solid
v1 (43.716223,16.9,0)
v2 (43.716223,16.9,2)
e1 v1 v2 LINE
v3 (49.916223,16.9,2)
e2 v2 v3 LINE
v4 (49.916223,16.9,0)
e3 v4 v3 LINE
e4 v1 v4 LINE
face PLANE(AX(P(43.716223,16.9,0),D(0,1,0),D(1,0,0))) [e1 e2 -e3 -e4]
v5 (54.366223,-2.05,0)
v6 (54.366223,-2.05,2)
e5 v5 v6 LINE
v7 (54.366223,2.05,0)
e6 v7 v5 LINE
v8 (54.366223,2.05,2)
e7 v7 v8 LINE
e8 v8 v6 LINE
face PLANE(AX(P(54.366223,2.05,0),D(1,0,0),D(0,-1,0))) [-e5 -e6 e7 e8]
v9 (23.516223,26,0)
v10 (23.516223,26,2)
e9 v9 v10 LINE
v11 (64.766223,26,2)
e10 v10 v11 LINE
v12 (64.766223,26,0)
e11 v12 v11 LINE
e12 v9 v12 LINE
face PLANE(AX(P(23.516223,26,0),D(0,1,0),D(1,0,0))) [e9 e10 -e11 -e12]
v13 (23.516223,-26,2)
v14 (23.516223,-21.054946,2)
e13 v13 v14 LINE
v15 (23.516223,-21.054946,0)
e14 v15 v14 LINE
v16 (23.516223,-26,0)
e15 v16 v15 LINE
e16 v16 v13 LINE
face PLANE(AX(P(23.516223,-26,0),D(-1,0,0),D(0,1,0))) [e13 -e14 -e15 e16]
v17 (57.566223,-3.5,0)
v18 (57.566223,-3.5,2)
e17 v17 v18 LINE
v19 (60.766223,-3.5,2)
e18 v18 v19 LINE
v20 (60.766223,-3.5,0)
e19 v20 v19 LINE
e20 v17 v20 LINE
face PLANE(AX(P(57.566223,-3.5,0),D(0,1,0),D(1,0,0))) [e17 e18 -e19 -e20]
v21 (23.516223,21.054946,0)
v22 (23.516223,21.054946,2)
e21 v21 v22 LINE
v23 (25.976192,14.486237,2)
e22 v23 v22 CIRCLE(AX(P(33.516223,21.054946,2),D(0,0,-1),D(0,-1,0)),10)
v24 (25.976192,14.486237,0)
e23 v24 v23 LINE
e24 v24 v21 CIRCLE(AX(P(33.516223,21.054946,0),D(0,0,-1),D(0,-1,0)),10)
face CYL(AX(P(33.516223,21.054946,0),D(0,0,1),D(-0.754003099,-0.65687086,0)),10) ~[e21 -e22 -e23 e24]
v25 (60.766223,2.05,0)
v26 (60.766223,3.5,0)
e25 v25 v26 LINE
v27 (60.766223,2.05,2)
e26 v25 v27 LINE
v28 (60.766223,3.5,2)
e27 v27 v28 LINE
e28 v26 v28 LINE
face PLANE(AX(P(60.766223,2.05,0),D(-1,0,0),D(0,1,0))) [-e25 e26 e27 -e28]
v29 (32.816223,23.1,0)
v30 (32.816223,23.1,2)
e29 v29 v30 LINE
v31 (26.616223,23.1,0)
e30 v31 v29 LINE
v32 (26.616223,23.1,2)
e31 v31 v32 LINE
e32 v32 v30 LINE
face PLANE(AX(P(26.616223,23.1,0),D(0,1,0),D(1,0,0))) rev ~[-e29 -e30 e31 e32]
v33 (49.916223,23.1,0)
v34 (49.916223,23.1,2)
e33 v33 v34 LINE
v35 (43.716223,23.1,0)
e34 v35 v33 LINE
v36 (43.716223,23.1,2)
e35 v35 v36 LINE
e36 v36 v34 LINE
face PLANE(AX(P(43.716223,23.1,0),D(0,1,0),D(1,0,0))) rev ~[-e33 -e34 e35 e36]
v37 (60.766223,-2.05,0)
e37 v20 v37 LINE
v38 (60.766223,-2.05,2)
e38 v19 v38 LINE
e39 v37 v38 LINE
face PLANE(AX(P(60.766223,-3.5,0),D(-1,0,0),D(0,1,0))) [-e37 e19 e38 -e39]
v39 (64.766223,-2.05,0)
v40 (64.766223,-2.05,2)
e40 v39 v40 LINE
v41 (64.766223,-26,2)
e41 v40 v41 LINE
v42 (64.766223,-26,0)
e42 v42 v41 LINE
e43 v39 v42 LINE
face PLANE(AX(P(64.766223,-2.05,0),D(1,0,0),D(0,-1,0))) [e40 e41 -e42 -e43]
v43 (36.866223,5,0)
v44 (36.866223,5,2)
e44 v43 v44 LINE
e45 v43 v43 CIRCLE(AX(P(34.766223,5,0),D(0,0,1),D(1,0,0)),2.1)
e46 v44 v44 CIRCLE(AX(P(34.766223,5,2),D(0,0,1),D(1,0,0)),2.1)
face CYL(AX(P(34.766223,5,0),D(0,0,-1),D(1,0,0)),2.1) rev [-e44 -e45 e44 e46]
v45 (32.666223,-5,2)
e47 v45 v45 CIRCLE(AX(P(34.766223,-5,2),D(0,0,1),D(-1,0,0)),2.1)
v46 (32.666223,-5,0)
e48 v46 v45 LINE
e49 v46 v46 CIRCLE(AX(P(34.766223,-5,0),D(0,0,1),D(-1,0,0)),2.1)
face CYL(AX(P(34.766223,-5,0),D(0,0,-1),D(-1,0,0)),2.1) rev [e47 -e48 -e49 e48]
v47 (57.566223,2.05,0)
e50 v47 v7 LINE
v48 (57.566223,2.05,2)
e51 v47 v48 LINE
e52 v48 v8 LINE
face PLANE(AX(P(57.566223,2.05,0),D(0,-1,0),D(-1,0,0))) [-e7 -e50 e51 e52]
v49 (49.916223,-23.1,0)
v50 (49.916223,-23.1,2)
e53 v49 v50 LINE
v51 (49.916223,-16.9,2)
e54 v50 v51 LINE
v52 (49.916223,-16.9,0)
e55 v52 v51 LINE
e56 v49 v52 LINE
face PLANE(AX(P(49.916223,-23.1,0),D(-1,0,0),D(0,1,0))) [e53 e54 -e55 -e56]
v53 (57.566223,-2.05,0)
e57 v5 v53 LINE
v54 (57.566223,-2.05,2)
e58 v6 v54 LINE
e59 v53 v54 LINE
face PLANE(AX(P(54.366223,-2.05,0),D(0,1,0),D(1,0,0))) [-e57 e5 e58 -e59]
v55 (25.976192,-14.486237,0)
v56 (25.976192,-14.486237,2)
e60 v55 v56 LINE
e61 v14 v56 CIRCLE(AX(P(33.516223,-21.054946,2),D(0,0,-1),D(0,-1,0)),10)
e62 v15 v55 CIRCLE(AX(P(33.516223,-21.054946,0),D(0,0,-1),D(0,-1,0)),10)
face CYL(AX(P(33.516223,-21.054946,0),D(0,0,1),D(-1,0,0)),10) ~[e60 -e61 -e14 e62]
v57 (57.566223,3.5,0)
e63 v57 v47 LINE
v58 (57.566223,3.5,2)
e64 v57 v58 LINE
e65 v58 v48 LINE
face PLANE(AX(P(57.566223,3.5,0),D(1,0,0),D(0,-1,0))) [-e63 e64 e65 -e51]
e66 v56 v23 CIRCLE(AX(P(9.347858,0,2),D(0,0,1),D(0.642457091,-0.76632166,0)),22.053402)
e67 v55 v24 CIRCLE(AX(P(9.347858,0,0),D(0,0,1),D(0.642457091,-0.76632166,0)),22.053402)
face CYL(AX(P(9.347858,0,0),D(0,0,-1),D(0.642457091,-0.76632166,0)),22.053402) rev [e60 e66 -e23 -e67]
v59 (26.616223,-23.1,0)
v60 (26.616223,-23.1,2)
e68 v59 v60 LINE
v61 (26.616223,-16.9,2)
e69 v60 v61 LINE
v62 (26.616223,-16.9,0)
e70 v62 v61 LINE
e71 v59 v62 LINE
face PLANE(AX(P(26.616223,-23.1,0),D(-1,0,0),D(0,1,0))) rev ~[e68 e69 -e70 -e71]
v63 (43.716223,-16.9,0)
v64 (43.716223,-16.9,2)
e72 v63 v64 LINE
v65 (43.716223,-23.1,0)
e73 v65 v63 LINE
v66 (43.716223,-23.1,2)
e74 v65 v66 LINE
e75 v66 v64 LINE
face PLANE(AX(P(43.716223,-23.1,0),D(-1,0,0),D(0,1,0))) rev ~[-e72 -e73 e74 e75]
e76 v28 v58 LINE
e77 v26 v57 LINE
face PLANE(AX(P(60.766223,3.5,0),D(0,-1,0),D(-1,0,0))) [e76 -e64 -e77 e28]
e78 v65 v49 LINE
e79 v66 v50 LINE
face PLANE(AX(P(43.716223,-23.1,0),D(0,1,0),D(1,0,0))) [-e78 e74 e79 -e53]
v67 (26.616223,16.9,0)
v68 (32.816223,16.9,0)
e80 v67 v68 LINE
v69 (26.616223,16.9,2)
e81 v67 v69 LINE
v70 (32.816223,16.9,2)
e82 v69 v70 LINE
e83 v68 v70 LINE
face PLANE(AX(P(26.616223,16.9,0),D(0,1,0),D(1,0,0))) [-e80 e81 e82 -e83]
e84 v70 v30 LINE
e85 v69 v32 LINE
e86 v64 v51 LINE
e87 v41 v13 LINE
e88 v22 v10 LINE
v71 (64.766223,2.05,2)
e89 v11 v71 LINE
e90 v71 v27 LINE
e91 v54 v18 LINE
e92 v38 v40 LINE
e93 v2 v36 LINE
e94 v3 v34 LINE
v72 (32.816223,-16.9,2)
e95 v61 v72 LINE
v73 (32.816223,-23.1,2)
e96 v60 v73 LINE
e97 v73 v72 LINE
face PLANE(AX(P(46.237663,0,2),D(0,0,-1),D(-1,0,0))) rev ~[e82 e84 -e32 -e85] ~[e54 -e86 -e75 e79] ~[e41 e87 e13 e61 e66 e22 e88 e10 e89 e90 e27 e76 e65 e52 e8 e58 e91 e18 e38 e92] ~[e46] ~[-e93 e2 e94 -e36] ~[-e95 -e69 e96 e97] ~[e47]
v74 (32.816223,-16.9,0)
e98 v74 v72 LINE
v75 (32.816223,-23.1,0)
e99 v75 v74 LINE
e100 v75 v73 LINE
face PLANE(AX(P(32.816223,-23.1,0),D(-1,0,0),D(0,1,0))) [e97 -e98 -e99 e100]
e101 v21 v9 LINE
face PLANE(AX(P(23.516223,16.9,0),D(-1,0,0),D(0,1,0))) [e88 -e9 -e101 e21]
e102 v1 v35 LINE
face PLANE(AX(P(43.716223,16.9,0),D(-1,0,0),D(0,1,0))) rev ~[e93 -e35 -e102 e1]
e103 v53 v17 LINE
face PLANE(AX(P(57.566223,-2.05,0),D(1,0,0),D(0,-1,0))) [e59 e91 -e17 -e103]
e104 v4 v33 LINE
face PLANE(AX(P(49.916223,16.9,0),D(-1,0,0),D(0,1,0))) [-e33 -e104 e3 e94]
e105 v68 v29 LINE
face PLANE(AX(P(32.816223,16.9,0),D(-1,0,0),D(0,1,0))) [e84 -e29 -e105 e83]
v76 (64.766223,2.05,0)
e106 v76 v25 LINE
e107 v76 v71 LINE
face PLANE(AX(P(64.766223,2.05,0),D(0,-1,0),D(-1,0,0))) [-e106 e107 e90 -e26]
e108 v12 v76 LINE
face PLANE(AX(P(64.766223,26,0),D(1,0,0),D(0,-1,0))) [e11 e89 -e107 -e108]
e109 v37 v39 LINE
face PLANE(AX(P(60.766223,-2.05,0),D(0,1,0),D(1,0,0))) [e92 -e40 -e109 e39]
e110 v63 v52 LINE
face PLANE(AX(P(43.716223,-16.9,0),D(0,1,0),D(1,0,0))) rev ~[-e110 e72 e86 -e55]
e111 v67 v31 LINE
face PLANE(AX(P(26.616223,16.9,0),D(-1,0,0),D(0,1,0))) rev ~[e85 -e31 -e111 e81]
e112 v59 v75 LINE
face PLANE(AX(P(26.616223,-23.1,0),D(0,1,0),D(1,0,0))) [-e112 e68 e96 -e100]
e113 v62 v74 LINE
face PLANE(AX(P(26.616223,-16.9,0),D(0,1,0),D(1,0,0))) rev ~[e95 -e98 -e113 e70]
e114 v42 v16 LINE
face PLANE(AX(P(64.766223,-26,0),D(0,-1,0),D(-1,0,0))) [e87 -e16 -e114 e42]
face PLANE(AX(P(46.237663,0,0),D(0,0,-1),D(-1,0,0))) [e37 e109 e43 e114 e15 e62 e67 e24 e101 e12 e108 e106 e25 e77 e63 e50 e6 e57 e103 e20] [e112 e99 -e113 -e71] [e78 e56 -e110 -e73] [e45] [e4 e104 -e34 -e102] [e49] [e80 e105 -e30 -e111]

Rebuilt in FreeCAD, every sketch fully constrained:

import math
import FreeCAD as App
import Part
import Sketcher
Q = App.Units.Quantity


def edges_at(feature, points):
    """Names of the edges that pass closest to the given points."""
    edges = feature.Shape.Edges
    near = lambda p: min(range(len(edges)), key=lambda i: edges[i].distToShape(Part.Vertex(*p))[0])
    return sorted({f"Edge{near(p) + 1}" for p in points})


def add_polygon(sketch, points):
    """Adds a closed chain of lines whose ends are joined by coincident constraints."""
    first, n = sketch.GeometryCount, len(points)
    for a, b in zip(points, points[1:] + points[:1]):
        sketch.addGeometry(Part.LineSegment(App.Vector(*a, 0), App.Vector(*b, 0)), False)
    for i in range(n):
        sketch.addConstraint(Sketcher.Constraint("Coincident", first + i, 2, first + (i + 1) % n, 1))

doc = App.newDocument("Part")
body = doc.addObject("PartDesign::Body", "Body")

# Sketch on XY plane
sketch1 = doc.addObject("Sketcher::SketchObject", "Sketch")
body.addObject(sketch1)
sketch1.AttachmentSupport = (doc.XY_Plane, [""])
sketch1.MapMode = "FlatFace"
sketch1.addGeometry(Part.LineSegment(App.Vector(23.5, -26, 0), App.Vector(64.8, -26, 0)), False)  # 0
sketch1.addGeometry(Part.LineSegment(App.Vector(64.8, -26, 0), App.Vector(64.8, -2, 0)), False)  # 1
sketch1.addGeometry(Part.LineSegment(App.Vector(64.8, -2, 0), App.Vector(60.8, -2, 0)), False)  # 2
sketch1.addGeometry(Part.LineSegment(App.Vector(60.8, -2, 0), App.Vector(60.8, -3.5, 0)), False)  # 3
sketch1.addGeometry(Part.LineSegment(App.Vector(60.8, -3.5, 0), App.Vector(57.6, -3.5, 0)), False)  # 4
sketch1.addGeometry(Part.LineSegment(App.Vector(57.6, -3.5, 0), App.Vector(57.6, -2, 0)), False)  # 5
sketch1.addGeometry(Part.LineSegment(App.Vector(57.6, -2, 0), App.Vector(54.4, -2, 0)), False)  # 6
sketch1.addGeometry(Part.LineSegment(App.Vector(54.4, -2, 0), App.Vector(54.4, 2, 0)), False)  # 7
sketch1.addGeometry(Part.LineSegment(App.Vector(54.4, 2, 0), App.Vector(57.6, 2, 0)), False)  # 8
sketch1.addGeometry(Part.LineSegment(App.Vector(57.6, 2, 0), App.Vector(57.6, 3.5, 0)), False)  # 9
sketch1.addGeometry(Part.LineSegment(App.Vector(57.6, 3.5, 0), App.Vector(60.8, 3.5, 0)), False)  # 10
sketch1.addGeometry(Part.LineSegment(App.Vector(60.8, 3.5, 0), App.Vector(60.8, 2, 0)), False)  # 11
sketch1.addGeometry(Part.LineSegment(App.Vector(60.8, 2, 0), App.Vector(64.8, 2, 0)), False)  # 12
sketch1.addGeometry(Part.LineSegment(App.Vector(64.8, 2, 0), App.Vector(64.8, 26, 0)), False)  # 13
sketch1.addGeometry(Part.LineSegment(App.Vector(64.8, 26, 0), App.Vector(23.5, 26, 0)), False)  # 14
sketch1.addGeometry(Part.LineSegment(App.Vector(23.5, 26, 0), App.Vector(23.5, 16.9, 0)), False)  # 15
sketch1.addGeometry(Part.ArcOfCircle(Part.Circle(App.Vector(9.3, 0, 0), App.Vector(0, 0, 1), 22.1), math.radians(-50), math.radians(50)), False)  # 16
sketch1.addGeometry(Part.LineSegment(App.Vector(23.5, -16.9, 0), App.Vector(23.5, -26, 0)), False)  # 17
add_polygon(sketch1, [(43.7, -23.1), (43.7, -16.9), (49.9, -16.9), (49.9, -23.1)])  # lines 18-21
add_polygon(sketch1, [(26.6, -23.1), (26.6, -16.9), (32.8, -16.9), (32.8, -23.1)])  # lines 22-25
sketch1.addGeometry(Part.Circle(App.Vector(34.8, -5, 0), App.Vector(0, 0, 1), 2.1), False)  # 26
add_polygon(sketch1, [(43.7, 16.9), (43.7, 23.1), (49.9, 23.1), (49.9, 16.9)])  # lines 27-30
sketch1.addGeometry(Part.Circle(App.Vector(34.8, 5, 0), App.Vector(0, 0, 1), 2.1), False)  # 31
add_polygon(sketch1, [(26.6, 16.9), (26.6, 23.1), (32.8, 23.1), (32.8, 16.9)])  # lines 32-35
sketch1.addConstraint(Sketcher.Constraint("Coincident", 0, 2, 1, 1))
sketch1.addConstraint(Sketcher.Constraint("Coincident", 1, 2, 2, 1))
sketch1.addConstraint(Sketcher.Constraint("Coincident", 2, 2, 3, 1))
sketch1.addConstraint(Sketcher.Constraint("Coincident", 3, 2, 4, 1))
sketch1.addConstraint(Sketcher.Constraint("Coincident", 4, 2, 5, 1))
sketch1.addConstraint(Sketcher.Constraint("Coincident", 5, 2, 6, 1))
sketch1.addConstraint(Sketcher.Constraint("Coincident", 6, 2, 7, 1))
sketch1.addConstraint(Sketcher.Constraint("Coincident", 7, 2, 8, 1))
sketch1.addConstraint(Sketcher.Constraint("Coincident", 8, 2, 9, 1))
sketch1.addConstraint(Sketcher.Constraint("Coincident", 9, 2, 10, 1))
sketch1.addConstraint(Sketcher.Constraint("Coincident", 10, 2, 11, 1))
sketch1.addConstraint(Sketcher.Constraint("Coincident", 11, 2, 12, 1))
sketch1.addConstraint(Sketcher.Constraint("Coincident", 12, 2, 13, 1))
sketch1.addConstraint(Sketcher.Constraint("Coincident", 13, 2, 14, 1))
sketch1.addConstraint(Sketcher.Constraint("Coincident", 14, 2, 15, 1))
sketch1.addConstraint(Sketcher.Constraint("Coincident", 15, 2, 16, 2))
sketch1.addConstraint(Sketcher.Constraint("Coincident", 16, 1, 17, 1))
sketch1.addConstraint(Sketcher.Constraint("Coincident", 17, 2, 0, 1))
sketch1.addConstraint(Sketcher.Constraint("Horizontal", 0))
sketch1.addConstraint(Sketcher.Constraint("Vertical", 1))
sketch1.addConstraint(Sketcher.Constraint("Horizontal", 2))
sketch1.addConstraint(Sketcher.Constraint("Vertical", 3))
sketch1.addConstraint(Sketcher.Constraint("Horizontal", 4))
sketch1.addConstraint(Sketcher.Constraint("Vertical", 5))
sketch1.addConstraint(Sketcher.Constraint("Horizontal", 6))
sketch1.addConstraint(Sketcher.Constraint("Vertical", 7))
sketch1.addConstraint(Sketcher.Constraint("Horizontal", 8))
sketch1.addConstraint(Sketcher.Constraint("Vertical", 9))
sketch1.addConstraint(Sketcher.Constraint("Horizontal", 10))
sketch1.addConstraint(Sketcher.Constraint("Vertical", 11))
sketch1.addConstraint(Sketcher.Constraint("Horizontal", 12))
sketch1.addConstraint(Sketcher.Constraint("Vertical", 13))
sketch1.addConstraint(Sketcher.Constraint("Horizontal", 14))
sketch1.addConstraint(Sketcher.Constraint("Vertical", 15))
sketch1.addConstraint(Sketcher.Constraint("Vertical", 17))
sketch1.addConstraint(Sketcher.Constraint("Vertical", 18))
sketch1.addConstraint(Sketcher.Constraint("Horizontal", 19))
sketch1.addConstraint(Sketcher.Constraint("Vertical", 20))
sketch1.addConstraint(Sketcher.Constraint("Horizontal", 21))
sketch1.addConstraint(Sketcher.Constraint("Vertical", 22))
sketch1.addConstraint(Sketcher.Constraint("Horizontal", 23))
sketch1.addConstraint(Sketcher.Constraint("Vertical", 24))
sketch1.addConstraint(Sketcher.Constraint("Horizontal", 25))
sketch1.addConstraint(Sketcher.Constraint("Vertical", 27))
sketch1.addConstraint(Sketcher.Constraint("Horizontal", 28))
sketch1.addConstraint(Sketcher.Constraint("Vertical", 29))
sketch1.addConstraint(Sketcher.Constraint("Horizontal", 30))
sketch1.addConstraint(Sketcher.Constraint("Vertical", 32))
sketch1.addConstraint(Sketcher.Constraint("Horizontal", 33))
sketch1.addConstraint(Sketcher.Constraint("Vertical", 34))
sketch1.addConstraint(Sketcher.Constraint("Horizontal", 35))
sketch1.addConstraint(Sketcher.Constraint("Equal", 26, 31))
sketch1.addConstraint(Sketcher.Constraint("Symmetric", 26, 3, 31, 3, -1))
sketch1.addConstraint(Sketcher.Constraint("Symmetric", 5, 2, 8, 2, -1))
sketch1.addConstraint(Sketcher.Constraint("Symmetric", 3, 2, 10, 2, -1))
sketch1.addConstraint(Sketcher.Constraint("Symmetric", 1, 2, 12, 2, -1))
sketch1.addConstraint(Sketcher.Constraint("Symmetric", 15, 2, 16, 1, -1))
sketch1.addConstraint(Sketcher.Constraint("Symmetric", 21, 2, 27, 2, -1))
sketch1.addConstraint(Sketcher.Constraint("Symmetric", 19, 2, 29, 2, -1))
sketch1.addConstraint(Sketcher.Constraint("Symmetric", 25, 2, 32, 2, -1))
sketch1.addConstraint(Sketcher.Constraint("Symmetric", 23, 2, 34, 2, -1))
sketch1.addConstraint(Sketcher.Constraint("Horizontal", 2, 2, 5, 2))
sketch1.addConstraint(Sketcher.Constraint("Horizontal", 16, 1, 18, 2))
sketch1.addConstraint(Sketcher.Constraint("Horizontal", 19, 2, 22, 2))
sketch1.addConstraint(Sketcher.Constraint("Horizontal", 21, 2, 24, 2))
sketch1.addConstraint(Sketcher.Constraint("Equal", 4, 6))
sketch1.addConstraint(Sketcher.Constraint("Equal", 21, 23))
sketch1.addConstraint(Sketcher.Constraint("Equal", 1, 13))
sketch1.addConstraint(Sketcher.Constraint("Equal", 35, 18))
sketch1.addConstraint(Sketcher.Constraint("Diameter", 26, Q("4.2 mm")))
sketch1.addConstraint(Sketcher.Constraint("DistanceX", 2, 2, 2, 1, Q("4 mm")))
sketch1.addConstraint(Sketcher.Constraint("DistanceX", 4, 2, 4, 1, Q("3.2 mm")))
sketch1.addConstraint(Sketcher.Constraint("DistanceX", 19, 1, 19, 2, Q("6.2 mm")))
sketch1.addConstraint(Sketcher.Constraint("DistanceY", 7, 1, 7, 2, Q("4.1 mm")))
sketch1.addConstraint(Sketcher.Constraint("DistanceY", 15, 2, 15, 1, Q("9.1 mm")))
sketch1.addConstraint(Sketcher.Constraint("DistanceY", 26, 3, -1, 1, Q("5 mm")))
sketch1.addConstraint(Sketcher.Constraint("DistanceY", 0, 2, -1, 1, Q("26 mm")))
sketch1.addConstraint(Sketcher.Constraint("DistanceX", 26, 3, 0, 2, Q("30 mm")))
sketch1.addConstraint(Sketcher.Constraint("DistanceX", 0, 1, 0, 2, Q("41.25 mm")))
sketch1.addConstraint(Sketcher.Constraint("DistanceY", 3, 2, 3, 1, Q("1.45 mm")))
sketch1.addConstraint(Sketcher.Constraint("DistanceX", 16, 1, 18, 2, Q("20.2 mm")))
sketch1.addConstraint(Sketcher.Constraint("DistanceX", 16, 1, 22, 2, Q("3.1 mm")))
sketch1.addConstraint(Sketcher.Constraint("Radius", 16, Q("22.053402 mm")))
sketch1.addConstraint(Sketcher.Constraint("DistanceX", -1, 1, 16, 3, Q("9.347858 mm")))
pad1 = doc.addObject("PartDesign::Pad", "Pad")
body.addObject(pad1)
pad1.Profile = sketch1
pad1.Length = 2
doc.recompute()

fillet = doc.addObject("PartDesign::Fillet", "Fillet")
body.addObject(fillet)
fillet.Base = (pad1, edges_at(pad1, [(23.516, -16.9, 1), (23.516, 16.9, 1)]))
fillet.Radius = 10

doc.recompute()
